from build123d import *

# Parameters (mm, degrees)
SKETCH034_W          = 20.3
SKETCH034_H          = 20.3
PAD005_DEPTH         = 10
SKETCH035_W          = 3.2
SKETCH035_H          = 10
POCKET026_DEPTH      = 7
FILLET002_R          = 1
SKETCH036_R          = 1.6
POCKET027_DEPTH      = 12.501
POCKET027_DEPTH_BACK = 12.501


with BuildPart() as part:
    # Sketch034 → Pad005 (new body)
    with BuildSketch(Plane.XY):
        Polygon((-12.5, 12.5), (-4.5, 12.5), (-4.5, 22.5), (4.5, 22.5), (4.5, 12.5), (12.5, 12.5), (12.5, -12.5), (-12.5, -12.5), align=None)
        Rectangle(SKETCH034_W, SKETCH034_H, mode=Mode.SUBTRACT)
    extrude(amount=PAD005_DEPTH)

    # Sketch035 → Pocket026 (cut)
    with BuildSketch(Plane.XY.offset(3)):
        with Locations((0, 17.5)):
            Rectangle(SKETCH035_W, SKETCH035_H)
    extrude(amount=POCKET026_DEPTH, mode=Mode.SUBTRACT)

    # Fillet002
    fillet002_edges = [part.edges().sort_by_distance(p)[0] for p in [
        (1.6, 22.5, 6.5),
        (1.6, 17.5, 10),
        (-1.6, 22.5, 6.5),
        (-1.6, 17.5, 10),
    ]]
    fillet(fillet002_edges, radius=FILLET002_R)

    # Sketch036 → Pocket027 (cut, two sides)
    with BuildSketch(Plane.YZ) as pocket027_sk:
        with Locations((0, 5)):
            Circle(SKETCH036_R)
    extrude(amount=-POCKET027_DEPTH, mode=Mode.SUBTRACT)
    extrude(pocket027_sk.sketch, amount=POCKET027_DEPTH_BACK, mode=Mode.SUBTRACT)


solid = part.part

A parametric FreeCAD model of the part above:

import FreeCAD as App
import Part
import Sketcher
Q = App.Units.Quantity


def edges_at(feature, points):
    """Names of the edges that pass closest to the given points."""
    edges = feature.Shape.Edges
    near = lambda p: min(range(len(edges)), key=lambda i: edges[i].distToShape(Part.Vertex(*p))[0])
    return sorted({f"Edge{near(p) + 1}" for p in points})

doc = App.newDocument("Part")
body = doc.addObject("PartDesign::Body", "Body")

# Sketch on XY plane
sketch1 = body.newObject("Sketcher::SketchObject", "Sketch")
sketch1.AttachmentSupport = (doc.getObject("XY_Plane"), [""])
sketch1.MapMode = "FlatFace"
sketch1.addGeometry(Part.LineSegment(App.Vector(-4, 12, 0), App.Vector(-12, 12, 0)), False)
sketch1.addGeometry(Part.LineSegment(App.Vector(-12, 12, 0), App.Vector(-12, -12, 0)), False)
sketch1.addGeometry(Part.LineSegment(App.Vector(-12, -12, 0), App.Vector(12, -12, 0)), False)
sketch1.addGeometry(Part.LineSegment(App.Vector(12, -12, 0), App.Vector(12, 12, 0)), False)
sketch1.addGeometry(Part.LineSegment(App.Vector(12, 12, 0), App.Vector(4, 12, 0)), False)
sketch1.addGeometry(Part.LineSegment(App.Vector(4, 12, 0), App.Vector(4, 22, 0)), False)
sketch1.addGeometry(Part.LineSegment(App.Vector(4, 22, 0), App.Vector(-4, 22, 0)), False)
sketch1.addGeometry(Part.LineSegment(App.Vector(-4, 22, 0), App.Vector(-4, 12, 0)), False)
sketch1.addGeometry(Part.LineSegment(App.Vector(-10, -10, 0), App.Vector(-10, 10, 0)), False)
sketch1.addGeometry(Part.LineSegment(App.Vector(-10, 10, 0), App.Vector(10, 10, 0)), False)
sketch1.addGeometry(Part.LineSegment(App.Vector(10, 10, 0), App.Vector(10, -10, 0)), False)
sketch1.addGeometry(Part.LineSegment(App.Vector(10, -10, 0), App.Vector(-10, -10, 0)), False)
sketch1.addConstraint(Sketcher.Constraint("Coincident", 0, 2, 1, 1))
sketch1.addConstraint(Sketcher.Constraint("Coincident", 1, 2, 2, 1))
sketch1.addConstraint(Sketcher.Constraint("Coincident", 2, 2, 3, 1))
sketch1.addConstraint(Sketcher.Constraint("Coincident", 3, 2, 4, 1))
sketch1.addConstraint(Sketcher.Constraint("Coincident", 4, 2, 5, 1))
sketch1.addConstraint(Sketcher.Constraint("Coincident", 5, 2, 6, 1))
sketch1.addConstraint(Sketcher.Constraint("Coincident", 6, 2, 7, 1))
sketch1.addConstraint(Sketcher.Constraint("Coincident", 7, 2, 0, 1))
sketch1.addConstraint(Sketcher.Constraint("Coincident", 8, 2, 9, 1))
sketch1.addConstraint(Sketcher.Constraint("Coincident", 9, 2, 10, 1))
sketch1.addConstraint(Sketcher.Constraint("Coincident", 10, 2, 11, 1))
sketch1.addConstraint(Sketcher.Constraint("Coincident", 11, 2, 8, 1))
sketch1.addConstraint(Sketcher.Constraint("Horizontal", 0))
sketch1.addConstraint(Sketcher.Constraint("Vertical", 1))
sketch1.addConstraint(Sketcher.Constraint("Horizontal", 2))
sketch1.addConstraint(Sketcher.Constraint("Vertical", 3))
sketch1.addConstraint(Sketcher.Constraint("Horizontal", 4))
sketch1.addConstraint(Sketcher.Constraint("Vertical", 5))
sketch1.addConstraint(Sketcher.Constraint("Horizontal", 6))
sketch1.addConstraint(Sketcher.Constraint("Vertical", 7))
sketch1.addConstraint(Sketcher.Constraint("Vertical", 8))
sketch1.addConstraint(Sketcher.Constraint("Horizontal", 9))
sketch1.addConstraint(Sketcher.Constraint("Vertical", 10))
sketch1.addConstraint(Sketcher.Constraint("Horizontal", 11))
sketch1.addConstraint(Sketcher.Constraint("Symmetric", 0, 2, 2, 2, -1, 1))
sketch1.addConstraint(Sketcher.Constraint("Symmetric", 8, 2, 10, 2, -1, 1))
sketch1.addConstraint(Sketcher.Constraint("Symmetric", 4, 2, 7, 2, -2))
sketch1.addConstraint(Sketcher.Constraint("Equal", 2, 1))
sketch1.addConstraint(Sketcher.Constraint("Equal", 11, 8))
sketch1.addConstraint(Sketcher.Constraint("DistanceX", 0, 2, 0, 1, Q("8 mm")))
sketch1.addConstraint(Sketcher.Constraint("DistanceX", 2, 1, 2, 2, Q("25 mm")))
sketch1.addConstraint(Sketcher.Constraint("DistanceY", 5, 1, 5, 2, Q("10 mm")))
sketch1.addConstraint(Sketcher.Constraint("DistanceX", 9, 1, 9, 2, Q("20.3 mm")))
pad1 = body.newObject("PartDesign::Pad", "Pad")
pad1.Profile = sketch1
pad1.Length = 10

# Sketch on XY plane
sketch2 = body.newObject("Sketcher::SketchObject", "Sketch001")
sketch2.AttachmentSupport = (doc.getObject("XY_Plane"), [""])
sketch2.MapMode = "FlatFace"
sketch2.AttachmentOffset = App.Placement(App.Vector(0, 0, 3), App.Rotation())
sketch2.addGeometry(Part.LineSegment(App.Vector(-1.6, 22.5, 0), App.Vector(-1.6, 12.5, 0)), False)
sketch2.addGeometry(Part.LineSegment(App.Vector(-1.6, 12.5, 0), App.Vector(1.6, 12.5, 0)), False)
sketch2.addGeometry(Part.LineSegment(App.Vector(1.6, 12.5, 0), App.Vector(1.6, 22.5, 0)), False)
sketch2.addGeometry(Part.LineSegment(App.Vector(1.6, 22.5, 0), App.Vector(-1.6, 22.5, 0)), False)
sketch2.addConstraint(Sketcher.Constraint("Coincident", 0, 2, 1, 1))
sketch2.addConstraint(Sketcher.Constraint("Coincident", 1, 2, 2, 1))
sketch2.addConstraint(Sketcher.Constraint("Coincident", 2, 2, 3, 1))
sketch2.addConstraint(Sketcher.Constraint("Coincident", 3, 2, 0, 1))
sketch2.addConstraint(Sketcher.Constraint("Vertical", 0))
sketch2.addConstraint(Sketcher.Constraint("Horizontal", 1))
sketch2.addConstraint(Sketcher.Constraint("Vertical", 2))
sketch2.addConstraint(Sketcher.Constraint("Horizontal", 3))
sketch2.addConstraint(Sketcher.Constraint("DistanceY", 0, 2, 0, 1, Q("10 mm")))
sketch2.addConstraint(Sketcher.Constraint("DistanceX", 1, 1, 1, 2, Q("3.2 mm")))
sketch2.addConstraint(Sketcher.Constraint("DistanceX", 0, 2, -1, 1, Q("1.6 mm")))
sketch2.addConstraint(Sketcher.Constraint("DistanceY", -1, 1, 0, 2, Q("12.5 mm")))
pocket1 = body.newObject("PartDesign::Pocket", "Pocket")
pocket1.Profile = sketch2
pocket1.Length = 7
pocket1.Reversed = True
doc.recompute()

fillet = body.newObject("PartDesign::Fillet", "Fillet")
fillet.Base = (pocket1, edges_at(pocket1, [
    (1.6, 22.5, 6.5),
    (1.6, 17.5, 10),
    (-1.6, 22.5, 6.5),
    (-1.6, 17.5, 10),
]))
fillet.Radius = 1

# Sketch on YZ plane
sketch3 = body.newObject("Sketcher::SketchObject", "Sketch002")
sketch3.AttachmentSupport = (doc.getObject("YZ_Plane"), [""])
sketch3.MapMode = "FlatFace"
sketch3.addGeometry(Part.Circle(App.Vector(0, 5, 0), App.Vector(0, 0, 1), 1.6), False)
sketch3.addConstraint(Sketcher.Constraint("PointOnObject", 0, 3, -2))
sketch3.addConstraint(Sketcher.Constraint("Diameter", 0, Q("3.2 mm")))
sketch3.addConstraint(Sketcher.Constraint("DistanceY", -1, 1, 0, 3, Q("5 mm")))
pocket2 = body.newObject("PartDesign::Pocket", "Pocket001")
pocket2.Profile = sketch3
pocket2.Type = "ThroughAll"
pocket2.Midplane = True

doc.recompute()
